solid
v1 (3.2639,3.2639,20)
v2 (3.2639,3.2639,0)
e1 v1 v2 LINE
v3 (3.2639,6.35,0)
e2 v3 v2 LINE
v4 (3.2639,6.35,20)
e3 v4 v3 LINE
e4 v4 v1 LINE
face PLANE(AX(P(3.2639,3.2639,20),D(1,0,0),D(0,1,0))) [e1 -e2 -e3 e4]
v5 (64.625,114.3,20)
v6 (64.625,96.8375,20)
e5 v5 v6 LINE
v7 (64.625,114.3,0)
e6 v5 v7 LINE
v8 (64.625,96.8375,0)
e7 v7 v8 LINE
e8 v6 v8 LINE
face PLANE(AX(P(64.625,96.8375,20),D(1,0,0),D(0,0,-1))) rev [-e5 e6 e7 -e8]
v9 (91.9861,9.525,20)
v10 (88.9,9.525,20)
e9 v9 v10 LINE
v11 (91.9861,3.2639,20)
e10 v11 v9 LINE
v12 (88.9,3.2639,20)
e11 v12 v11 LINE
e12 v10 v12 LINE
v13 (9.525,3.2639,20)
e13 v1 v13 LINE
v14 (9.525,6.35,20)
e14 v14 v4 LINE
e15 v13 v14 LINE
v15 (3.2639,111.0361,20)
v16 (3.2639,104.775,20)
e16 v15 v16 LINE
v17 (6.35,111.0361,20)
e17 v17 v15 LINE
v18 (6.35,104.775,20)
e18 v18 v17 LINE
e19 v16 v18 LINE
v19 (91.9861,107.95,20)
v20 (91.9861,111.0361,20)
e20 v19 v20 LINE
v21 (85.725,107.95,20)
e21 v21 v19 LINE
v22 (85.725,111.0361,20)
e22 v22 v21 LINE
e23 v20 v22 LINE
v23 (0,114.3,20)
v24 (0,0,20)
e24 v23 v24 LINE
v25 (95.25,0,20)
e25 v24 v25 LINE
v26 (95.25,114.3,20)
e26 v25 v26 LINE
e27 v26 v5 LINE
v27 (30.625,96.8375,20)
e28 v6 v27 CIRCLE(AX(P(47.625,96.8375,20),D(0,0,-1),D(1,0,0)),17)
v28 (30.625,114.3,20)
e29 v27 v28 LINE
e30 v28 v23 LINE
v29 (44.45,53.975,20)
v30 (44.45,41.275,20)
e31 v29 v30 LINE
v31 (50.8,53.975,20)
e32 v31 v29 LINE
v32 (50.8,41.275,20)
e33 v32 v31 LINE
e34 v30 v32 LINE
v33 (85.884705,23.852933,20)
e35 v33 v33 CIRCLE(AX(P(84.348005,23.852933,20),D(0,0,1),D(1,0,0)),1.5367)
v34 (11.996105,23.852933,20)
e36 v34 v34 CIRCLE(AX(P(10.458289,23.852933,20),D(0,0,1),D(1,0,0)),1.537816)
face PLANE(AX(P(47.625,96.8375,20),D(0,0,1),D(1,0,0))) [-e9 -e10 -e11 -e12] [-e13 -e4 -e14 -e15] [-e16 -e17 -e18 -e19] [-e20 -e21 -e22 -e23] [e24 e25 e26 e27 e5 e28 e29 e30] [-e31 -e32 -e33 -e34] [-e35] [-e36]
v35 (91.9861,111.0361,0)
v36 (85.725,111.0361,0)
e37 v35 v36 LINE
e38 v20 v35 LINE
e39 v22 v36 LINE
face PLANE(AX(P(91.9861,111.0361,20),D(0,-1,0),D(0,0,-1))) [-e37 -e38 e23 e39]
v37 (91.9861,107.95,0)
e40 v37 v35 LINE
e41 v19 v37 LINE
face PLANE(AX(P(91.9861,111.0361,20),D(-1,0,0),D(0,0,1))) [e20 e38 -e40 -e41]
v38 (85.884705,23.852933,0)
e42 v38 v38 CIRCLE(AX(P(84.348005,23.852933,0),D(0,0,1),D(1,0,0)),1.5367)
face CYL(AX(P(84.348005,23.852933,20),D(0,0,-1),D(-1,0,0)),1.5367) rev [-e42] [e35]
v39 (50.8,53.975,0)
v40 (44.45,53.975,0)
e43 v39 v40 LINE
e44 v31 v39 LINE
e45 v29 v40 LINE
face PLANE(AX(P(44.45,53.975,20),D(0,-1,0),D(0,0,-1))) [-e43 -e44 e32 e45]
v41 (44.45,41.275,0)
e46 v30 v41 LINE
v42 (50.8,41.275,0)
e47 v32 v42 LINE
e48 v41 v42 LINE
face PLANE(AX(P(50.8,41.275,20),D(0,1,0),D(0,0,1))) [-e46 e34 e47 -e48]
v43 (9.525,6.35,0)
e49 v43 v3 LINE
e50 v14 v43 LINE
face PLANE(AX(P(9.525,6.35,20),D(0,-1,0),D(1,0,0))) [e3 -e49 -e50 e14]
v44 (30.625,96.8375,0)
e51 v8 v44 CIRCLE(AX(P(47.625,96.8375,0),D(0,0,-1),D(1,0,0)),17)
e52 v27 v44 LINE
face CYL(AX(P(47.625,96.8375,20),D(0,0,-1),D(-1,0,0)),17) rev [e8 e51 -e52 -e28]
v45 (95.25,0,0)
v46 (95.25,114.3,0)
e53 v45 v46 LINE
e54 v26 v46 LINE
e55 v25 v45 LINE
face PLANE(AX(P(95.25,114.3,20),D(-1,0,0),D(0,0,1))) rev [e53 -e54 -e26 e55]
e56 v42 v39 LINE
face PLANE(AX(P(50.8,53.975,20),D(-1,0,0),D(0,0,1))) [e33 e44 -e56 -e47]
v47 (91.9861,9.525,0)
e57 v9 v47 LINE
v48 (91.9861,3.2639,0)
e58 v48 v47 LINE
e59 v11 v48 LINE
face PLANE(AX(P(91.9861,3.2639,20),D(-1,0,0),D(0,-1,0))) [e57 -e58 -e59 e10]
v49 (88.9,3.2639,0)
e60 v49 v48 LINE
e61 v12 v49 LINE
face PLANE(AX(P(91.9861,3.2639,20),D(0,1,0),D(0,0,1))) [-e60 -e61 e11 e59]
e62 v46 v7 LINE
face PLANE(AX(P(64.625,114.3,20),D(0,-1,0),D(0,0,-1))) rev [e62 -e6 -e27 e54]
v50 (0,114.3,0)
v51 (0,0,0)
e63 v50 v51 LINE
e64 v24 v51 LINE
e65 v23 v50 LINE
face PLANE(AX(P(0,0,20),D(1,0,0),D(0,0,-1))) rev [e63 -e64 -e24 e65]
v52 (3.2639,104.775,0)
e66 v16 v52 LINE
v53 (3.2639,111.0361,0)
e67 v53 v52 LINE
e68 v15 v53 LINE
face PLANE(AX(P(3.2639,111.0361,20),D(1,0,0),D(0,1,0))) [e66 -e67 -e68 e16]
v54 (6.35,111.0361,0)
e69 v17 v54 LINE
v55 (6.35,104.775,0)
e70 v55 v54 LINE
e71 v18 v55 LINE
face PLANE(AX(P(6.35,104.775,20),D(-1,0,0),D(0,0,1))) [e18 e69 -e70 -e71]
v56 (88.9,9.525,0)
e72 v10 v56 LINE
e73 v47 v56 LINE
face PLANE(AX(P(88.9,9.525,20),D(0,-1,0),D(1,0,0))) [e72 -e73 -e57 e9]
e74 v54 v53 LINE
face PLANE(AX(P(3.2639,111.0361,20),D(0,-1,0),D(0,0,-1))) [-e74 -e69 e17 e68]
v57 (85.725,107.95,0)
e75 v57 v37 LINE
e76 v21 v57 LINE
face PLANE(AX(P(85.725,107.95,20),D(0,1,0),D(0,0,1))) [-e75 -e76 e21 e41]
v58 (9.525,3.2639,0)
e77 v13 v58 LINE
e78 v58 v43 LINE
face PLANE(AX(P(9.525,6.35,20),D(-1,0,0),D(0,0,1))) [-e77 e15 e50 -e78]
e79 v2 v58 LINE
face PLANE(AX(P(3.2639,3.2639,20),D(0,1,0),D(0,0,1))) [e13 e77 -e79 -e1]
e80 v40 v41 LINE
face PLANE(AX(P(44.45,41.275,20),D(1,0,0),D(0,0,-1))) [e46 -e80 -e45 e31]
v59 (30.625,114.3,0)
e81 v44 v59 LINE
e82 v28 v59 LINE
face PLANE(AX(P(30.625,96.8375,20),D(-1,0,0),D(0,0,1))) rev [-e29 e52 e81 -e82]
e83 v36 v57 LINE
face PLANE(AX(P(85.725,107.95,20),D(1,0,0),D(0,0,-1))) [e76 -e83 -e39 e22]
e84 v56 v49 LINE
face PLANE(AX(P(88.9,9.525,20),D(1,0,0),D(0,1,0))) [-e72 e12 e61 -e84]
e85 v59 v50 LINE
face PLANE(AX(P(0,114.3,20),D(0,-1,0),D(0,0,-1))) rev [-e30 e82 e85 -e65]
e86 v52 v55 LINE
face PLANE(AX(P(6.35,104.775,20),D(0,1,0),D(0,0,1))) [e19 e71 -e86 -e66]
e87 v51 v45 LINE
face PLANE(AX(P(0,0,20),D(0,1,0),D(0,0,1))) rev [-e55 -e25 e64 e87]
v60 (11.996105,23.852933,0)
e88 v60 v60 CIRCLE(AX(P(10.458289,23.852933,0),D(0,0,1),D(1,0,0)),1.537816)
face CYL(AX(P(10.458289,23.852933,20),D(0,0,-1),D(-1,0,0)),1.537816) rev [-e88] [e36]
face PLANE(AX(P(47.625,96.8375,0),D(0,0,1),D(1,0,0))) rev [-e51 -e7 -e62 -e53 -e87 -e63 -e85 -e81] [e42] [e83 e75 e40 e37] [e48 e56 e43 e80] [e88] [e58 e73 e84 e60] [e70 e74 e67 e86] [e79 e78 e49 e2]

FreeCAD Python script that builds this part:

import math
import FreeCAD as App
import Part
import Sketcher
Q = App.Units.Quantity

doc = App.newDocument("Part")
body = doc.addObject("PartDesign::Body", "Body")

# Sketch on XY plane
sketch1 = body.newObject("Sketcher::SketchObject", "Sketch")
sketch1.AttachmentSupport = (doc.getObject("XY_Plane"), [""])
sketch1.MapMode = "FlatFace"
sketch1.addGeometry(Part.LineSegment(App.Vector(0, 0, 0), App.Vector(95.2, 0, 0)), False)
sketch1.addGeometry(Part.LineSegment(App.Vector(95.2, 0, 0), App.Vector(95.2, 114.3, 0)), False)
sketch1.addGeometry(Part.LineSegment(App.Vector(95.2, 114.3, 0), App.Vector(64.6, 114.3, 0)), False)
sketch1.addGeometry(Part.LineSegment(App.Vector(64.6, 114.3, 0), App.Vector(64.6, 96.8, 0)), False)
sketch1.addGeometry(Part.ArcOfCircle(Part.Circle(App.Vector(47.6, 96.8, 0), App.Vector(0, 0, 1), 17), math.radians(180), math.radians(360)), False)
sketch1.addGeometry(Part.LineSegment(App.Vector(30.6, 96.8, 0), App.Vector(30.6, 114.3, 0)), False)
sketch1.addGeometry(Part.LineSegment(App.Vector(30.6, 114.3, 0), App.Vector(0, 114.3, 0)), False)
sketch1.addGeometry(Part.LineSegment(App.Vector(0, 114.3, 0), App.Vector(0, 0, 0)), False)
sketch1.addGeometry(Part.LineSegment(App.Vector(9.5, 3.3, 0), App.Vector(3.3, 3.3, 0)), False)
sketch1.addGeometry(Part.LineSegment(App.Vector(3.3, 3.3, 0), App.Vector(3.3, 6.3, 0)), False)
sketch1.addGeometry(Part.LineSegment(App.Vector(3.3, 6.3, 0), App.Vector(9.5, 6.3, 0)), False)
sketch1.addGeometry(Part.LineSegment(App.Vector(9.5, 6.3, 0), App.Vector(9.5, 3.3, 0)), False)
sketch1.addGeometry(Part.Circle(App.Vector(10.5, 23.9, 0), App.Vector(0, 0, 1), 1.5), False)
sketch1.addGeometry(Part.LineSegment(App.Vector(92, 3.3, 0), App.Vector(88.9, 3.3, 0)), False)
sketch1.addGeometry(Part.LineSegment(App.Vector(88.9, 3.3, 0), App.Vector(88.9, 9.5, 0)), False)
sketch1.addGeometry(Part.LineSegment(App.Vector(88.9, 9.5, 0), App.Vector(92, 9.5, 0)), False)
sketch1.addGeometry(Part.LineSegment(App.Vector(92, 9.5, 0), App.Vector(92, 3.3, 0)), False)
sketch1.addGeometry(Part.Circle(App.Vector(84.3, 23.9, 0), App.Vector(0, 0, 1), 1.5), False)
sketch1.addGeometry(Part.LineSegment(App.Vector(50.8, 41.3, 0), App.Vector(44.5, 41.3, 0)), False)
sketch1.addGeometry(Part.LineSegment(App.Vector(44.5, 41.3, 0), App.Vector(44.5, 54, 0)), False)
sketch1.addGeometry(Part.LineSegment(App.Vector(44.5, 54, 0), App.Vector(50.8, 54, 0)), False)
sketch1.addGeometry(Part.LineSegment(App.Vector(50.8, 54, 0), App.Vector(50.8, 41.3, 0)), False)
sketch1.addGeometry(Part.LineSegment(App.Vector(6.3, 104.8, 0), App.Vector(3.3, 104.8, 0)), False)
sketch1.addGeometry(Part.LineSegment(App.Vector(3.3, 104.8, 0), App.Vector(3.3, 111, 0)), False)
sketch1.addGeometry(Part.LineSegment(App.Vector(3.3, 111, 0), App.Vector(6.3, 111, 0)), False)
sketch1.addGeometry(Part.LineSegment(App.Vector(6.3, 111, 0), App.Vector(6.3, 104.8, 0)), False)
sketch1.addGeometry(Part.LineSegment(App.Vector(92, 108, 0), App.Vector(85.7, 108, 0)), False)
sketch1.addGeometry(Part.LineSegment(App.Vector(85.7, 108, 0), App.Vector(85.7, 111, 0)), False)
sketch1.addGeometry(Part.LineSegment(App.Vector(85.7, 111, 0), App.Vector(92, 111, 0)), False)
sketch1.addGeometry(Part.LineSegment(App.Vector(92, 111, 0), App.Vector(92, 108, 0)), False)
sketch1.addConstraint(Sketcher.Constraint("Coincident", 0, 2, 1, 1))
sketch1.addConstraint(Sketcher.Constraint("Coincident", 1, 2, 2, 1))
sketch1.addConstraint(Sketcher.Constraint("Coincident", 2, 2, 3, 1))
sketch1.addConstraint(Sketcher.Constraint("Tangent", 3, 2, 4, 2))
sketch1.addConstraint(Sketcher.Constraint("Tangent", 4, 1, 5, 1))
sketch1.addConstraint(Sketcher.Constraint("Coincident", 5, 2, 6, 1))
sketch1.addConstraint(Sketcher.Constraint("Coincident", 6, 2, 7, 1))
sketch1.addConstraint(Sketcher.Constraint("Coincident", 7, 2, 0, 1))
sketch1.addConstraint(Sketcher.Constraint("Coincident", 8, 2, 9, 1))
sketch1.addConstraint(Sketcher.Constraint("Coincident", 9, 2, 10, 1))
sketch1.addConstraint(Sketcher.Constraint("Coincident", 10, 2, 11, 1))
sketch1.addConstraint(Sketcher.Constraint("Coincident", 11, 2, 8, 1))
sketch1.addConstraint(Sketcher.Constraint("Coincident", 13, 2, 14, 1))
sketch1.addConstraint(Sketcher.Constraint("Coincident", 14, 2, 15, 1))
sketch1.addConstraint(Sketcher.Constraint("Coincident", 15, 2, 16, 1))
sketch1.addConstraint(Sketcher.Constraint("Coincident", 16, 2, 13, 1))
sketch1.addConstraint(Sketcher.Constraint("Coincident", 18, 2, 19, 1))
sketch1.addConstraint(Sketcher.Constraint("Coincident", 19, 2, 20, 1))
sketch1.addConstraint(Sketcher.Constraint("Coincident", 20, 2, 21, 1))
sketch1.addConstraint(Sketcher.Constraint("Coincident", 21, 2, 18, 1))
sketch1.addConstraint(Sketcher.Constraint("Coincident", 22, 2, 23, 1))
sketch1.addConstraint(Sketcher.Constraint("Coincident", 23, 2, 24, 1))
sketch1.addConstraint(Sketcher.Constraint("Coincident", 24, 2, 25, 1))
sketch1.addConstraint(Sketcher.Constraint("Coincident", 25, 2, 22, 1))
sketch1.addConstraint(Sketcher.Constraint("Coincident", 26, 2, 27, 1))
sketch1.addConstraint(Sketcher.Constraint("Coincident", 27, 2, 28, 1))
sketch1.addConstraint(Sketcher.Constraint("Coincident", 28, 2, 29, 1))
sketch1.addConstraint(Sketcher.Constraint("Coincident", 29, 2, 26, 1))
sketch1.addConstraint(Sketcher.Constraint("Horizontal", 0))
sketch1.addConstraint(Sketcher.Constraint("Vertical", 1))
sketch1.addConstraint(Sketcher.Constraint("Horizontal", 2))
sketch1.addConstraint(Sketcher.Constraint("Vertical", 3))
sketch1.addConstraint(Sketcher.Constraint("Vertical", 5))
sketch1.addConstraint(Sketcher.Constraint("Horizontal", 6))
sketch1.addConstraint(Sketcher.Constraint("Vertical", 7))
sketch1.addConstraint(Sketcher.Constraint("Horizontal", 8))
sketch1.addConstraint(Sketcher.Constraint("Vertical", 9))
sketch1.addConstraint(Sketcher.Constraint("Horizontal", 10))
sketch1.addConstraint(Sketcher.Constraint("Vertical", 11))
sketch1.addConstraint(Sketcher.Constraint("Horizontal", 13))
sketch1.addConstraint(Sketcher.Constraint("Vertical", 14))
sketch1.addConstraint(Sketcher.Constraint("Horizontal", 15))
sketch1.addConstraint(Sketcher.Constraint("Vertical", 16))
sketch1.addConstraint(Sketcher.Constraint("Horizontal", 18))
sketch1.addConstraint(Sketcher.Constraint("Vertical", 19))
sketch1.addConstraint(Sketcher.Constraint("Horizontal", 20))
sketch1.addConstraint(Sketcher.Constraint("Vertical", 21))
sketch1.addConstraint(Sketcher.Constraint("Horizontal", 22))
sketch1.addConstraint(Sketcher.Constraint("Vertical", 23))
sketch1.addConstraint(Sketcher.Constraint("Horizontal", 24))
sketch1.addConstraint(Sketcher.Constraint("Vertical", 25))
sketch1.addConstraint(Sketcher.Constraint("Horizontal", 26))
sketch1.addConstraint(Sketcher.Constraint("Vertical", 27))
sketch1.addConstraint(Sketcher.Constraint("Horizontal", 28))
sketch1.addConstraint(Sketcher.Constraint("Vertical", 29))
sketch1.addConstraint(Sketcher.Constraint("Coincident", 7, 2, -1, 1))
sketch1.addConstraint(Sketcher.Constraint("Horizontal", 12, 3, 17, 3))
sketch1.addConstraint(Sketcher.Constraint("Horizontal", 2, 2, 5, 2))
sketch1.addConstraint(Sketcher.Constraint("Horizontal", 11, 2, 13, 2))
sketch1.addConstraint(Sketcher.Constraint("Horizontal", 24, 2, 27, 2))
sketch1.addConstraint(Sketcher.Constraint("Vertical", 9, 2, 22, 2))
sketch1.addConstraint(Sketcher.Constraint("Vertical", 16, 2, 28, 2))
sketch1.addConstraint(Sketcher.Constraint("Equal", 2, 6))
sketch1.addConstraint(Sketcher.Constraint("Equal", 15, 22))
sketch1.addConstraint(Sketcher.Constraint("Equal", 10, 26))
sketch1.addConstraint(Sketcher.Constraint("Equal", 24, 9))
sketch1.addConstraint(Sketcher.Constraint("Equal", 28, 14))
sketch1.addConstraint(Sketcher.Constraint("Equal", 16, 23))
sketch1.addConstraint(Sketcher.Constraint("Equal", 11, 27))
sketch1.addConstraint(Sketcher.Constraint("Diameter", 17, Q("0.121 in")))
sketch1.addConstraint(Sketcher.Constraint("DistanceY", 1, 1, 1, 2, Q("4.5 in")))
sketch1.addConstraint(Sketcher.Constraint("DistanceY", 19, 1, 19, 2, Q("0.5 in")))
sketch1.addConstraint(Sketcher.Constraint("DistanceX", -1, 1, 20, 2, Q("2 in")))
sketch1.addConstraint(Sketcher.Constraint("DistanceX", 0, 1, 0, 2, Q("3.75 in")))
sketch1.addConstraint(Sketcher.Constraint("DistanceX", 18, 2, 18, 1, Q("0.25 in")))
sketch1.addConstraint(Sketcher.Constraint("DistanceX", -1, 1, 13, 2, Q("3.5 in")))
sketch1.addConstraint(Sketcher.Constraint("DistanceX", 4, 3, 26, 2, Q("1.5 in")))
sketch1.addConstraint(Sketcher.Constraint("DistanceY", 3, 2, 3, 1, Q("0.6875 in")))
sketch1.addConstraint(Sketcher.Constraint("DistanceY", -1, 1, 9, 2, Q("0.25 in")))
sketch1.addConstraint(Sketcher.Constraint("DistanceX", -1, 1, 24, 2, Q("0.25 in")))
sketch1.addConstraint(Sketcher.Constraint("DistanceY", -1, 1, 26, 2, Q("4.25 in")))
sketch1.addConstraint(Sketcher.Constraint("Radius", 4, 17.0))
sketch1.addConstraint(Sketcher.Constraint("DistanceX", 8, 2, 8, 1, Q("0.2465 in")))
sketch1.addConstraint(Sketcher.Constraint("DistanceY", -1, 1, 18, 2, Q("1.625 in")))
sketch1.addConstraint(Sketcher.Constraint("Diameter", 12, 3.075632))
sketch1.addConstraint(Sketcher.Constraint("DistanceX", -1, 1, 12, 3, 10.458289))
sketch1.addConstraint(Sketcher.Constraint("DistanceY", -1, 1, 12, 3, 23.852933))
sketch1.addConstraint(Sketcher.Constraint("DistanceX", -1, 1, 17, 3, 84.348005))
pad1 = body.newObject("PartDesign::Pad", "Pad")
pad1.Profile = sketch1
pad1.Length = 20

doc.recompute()
